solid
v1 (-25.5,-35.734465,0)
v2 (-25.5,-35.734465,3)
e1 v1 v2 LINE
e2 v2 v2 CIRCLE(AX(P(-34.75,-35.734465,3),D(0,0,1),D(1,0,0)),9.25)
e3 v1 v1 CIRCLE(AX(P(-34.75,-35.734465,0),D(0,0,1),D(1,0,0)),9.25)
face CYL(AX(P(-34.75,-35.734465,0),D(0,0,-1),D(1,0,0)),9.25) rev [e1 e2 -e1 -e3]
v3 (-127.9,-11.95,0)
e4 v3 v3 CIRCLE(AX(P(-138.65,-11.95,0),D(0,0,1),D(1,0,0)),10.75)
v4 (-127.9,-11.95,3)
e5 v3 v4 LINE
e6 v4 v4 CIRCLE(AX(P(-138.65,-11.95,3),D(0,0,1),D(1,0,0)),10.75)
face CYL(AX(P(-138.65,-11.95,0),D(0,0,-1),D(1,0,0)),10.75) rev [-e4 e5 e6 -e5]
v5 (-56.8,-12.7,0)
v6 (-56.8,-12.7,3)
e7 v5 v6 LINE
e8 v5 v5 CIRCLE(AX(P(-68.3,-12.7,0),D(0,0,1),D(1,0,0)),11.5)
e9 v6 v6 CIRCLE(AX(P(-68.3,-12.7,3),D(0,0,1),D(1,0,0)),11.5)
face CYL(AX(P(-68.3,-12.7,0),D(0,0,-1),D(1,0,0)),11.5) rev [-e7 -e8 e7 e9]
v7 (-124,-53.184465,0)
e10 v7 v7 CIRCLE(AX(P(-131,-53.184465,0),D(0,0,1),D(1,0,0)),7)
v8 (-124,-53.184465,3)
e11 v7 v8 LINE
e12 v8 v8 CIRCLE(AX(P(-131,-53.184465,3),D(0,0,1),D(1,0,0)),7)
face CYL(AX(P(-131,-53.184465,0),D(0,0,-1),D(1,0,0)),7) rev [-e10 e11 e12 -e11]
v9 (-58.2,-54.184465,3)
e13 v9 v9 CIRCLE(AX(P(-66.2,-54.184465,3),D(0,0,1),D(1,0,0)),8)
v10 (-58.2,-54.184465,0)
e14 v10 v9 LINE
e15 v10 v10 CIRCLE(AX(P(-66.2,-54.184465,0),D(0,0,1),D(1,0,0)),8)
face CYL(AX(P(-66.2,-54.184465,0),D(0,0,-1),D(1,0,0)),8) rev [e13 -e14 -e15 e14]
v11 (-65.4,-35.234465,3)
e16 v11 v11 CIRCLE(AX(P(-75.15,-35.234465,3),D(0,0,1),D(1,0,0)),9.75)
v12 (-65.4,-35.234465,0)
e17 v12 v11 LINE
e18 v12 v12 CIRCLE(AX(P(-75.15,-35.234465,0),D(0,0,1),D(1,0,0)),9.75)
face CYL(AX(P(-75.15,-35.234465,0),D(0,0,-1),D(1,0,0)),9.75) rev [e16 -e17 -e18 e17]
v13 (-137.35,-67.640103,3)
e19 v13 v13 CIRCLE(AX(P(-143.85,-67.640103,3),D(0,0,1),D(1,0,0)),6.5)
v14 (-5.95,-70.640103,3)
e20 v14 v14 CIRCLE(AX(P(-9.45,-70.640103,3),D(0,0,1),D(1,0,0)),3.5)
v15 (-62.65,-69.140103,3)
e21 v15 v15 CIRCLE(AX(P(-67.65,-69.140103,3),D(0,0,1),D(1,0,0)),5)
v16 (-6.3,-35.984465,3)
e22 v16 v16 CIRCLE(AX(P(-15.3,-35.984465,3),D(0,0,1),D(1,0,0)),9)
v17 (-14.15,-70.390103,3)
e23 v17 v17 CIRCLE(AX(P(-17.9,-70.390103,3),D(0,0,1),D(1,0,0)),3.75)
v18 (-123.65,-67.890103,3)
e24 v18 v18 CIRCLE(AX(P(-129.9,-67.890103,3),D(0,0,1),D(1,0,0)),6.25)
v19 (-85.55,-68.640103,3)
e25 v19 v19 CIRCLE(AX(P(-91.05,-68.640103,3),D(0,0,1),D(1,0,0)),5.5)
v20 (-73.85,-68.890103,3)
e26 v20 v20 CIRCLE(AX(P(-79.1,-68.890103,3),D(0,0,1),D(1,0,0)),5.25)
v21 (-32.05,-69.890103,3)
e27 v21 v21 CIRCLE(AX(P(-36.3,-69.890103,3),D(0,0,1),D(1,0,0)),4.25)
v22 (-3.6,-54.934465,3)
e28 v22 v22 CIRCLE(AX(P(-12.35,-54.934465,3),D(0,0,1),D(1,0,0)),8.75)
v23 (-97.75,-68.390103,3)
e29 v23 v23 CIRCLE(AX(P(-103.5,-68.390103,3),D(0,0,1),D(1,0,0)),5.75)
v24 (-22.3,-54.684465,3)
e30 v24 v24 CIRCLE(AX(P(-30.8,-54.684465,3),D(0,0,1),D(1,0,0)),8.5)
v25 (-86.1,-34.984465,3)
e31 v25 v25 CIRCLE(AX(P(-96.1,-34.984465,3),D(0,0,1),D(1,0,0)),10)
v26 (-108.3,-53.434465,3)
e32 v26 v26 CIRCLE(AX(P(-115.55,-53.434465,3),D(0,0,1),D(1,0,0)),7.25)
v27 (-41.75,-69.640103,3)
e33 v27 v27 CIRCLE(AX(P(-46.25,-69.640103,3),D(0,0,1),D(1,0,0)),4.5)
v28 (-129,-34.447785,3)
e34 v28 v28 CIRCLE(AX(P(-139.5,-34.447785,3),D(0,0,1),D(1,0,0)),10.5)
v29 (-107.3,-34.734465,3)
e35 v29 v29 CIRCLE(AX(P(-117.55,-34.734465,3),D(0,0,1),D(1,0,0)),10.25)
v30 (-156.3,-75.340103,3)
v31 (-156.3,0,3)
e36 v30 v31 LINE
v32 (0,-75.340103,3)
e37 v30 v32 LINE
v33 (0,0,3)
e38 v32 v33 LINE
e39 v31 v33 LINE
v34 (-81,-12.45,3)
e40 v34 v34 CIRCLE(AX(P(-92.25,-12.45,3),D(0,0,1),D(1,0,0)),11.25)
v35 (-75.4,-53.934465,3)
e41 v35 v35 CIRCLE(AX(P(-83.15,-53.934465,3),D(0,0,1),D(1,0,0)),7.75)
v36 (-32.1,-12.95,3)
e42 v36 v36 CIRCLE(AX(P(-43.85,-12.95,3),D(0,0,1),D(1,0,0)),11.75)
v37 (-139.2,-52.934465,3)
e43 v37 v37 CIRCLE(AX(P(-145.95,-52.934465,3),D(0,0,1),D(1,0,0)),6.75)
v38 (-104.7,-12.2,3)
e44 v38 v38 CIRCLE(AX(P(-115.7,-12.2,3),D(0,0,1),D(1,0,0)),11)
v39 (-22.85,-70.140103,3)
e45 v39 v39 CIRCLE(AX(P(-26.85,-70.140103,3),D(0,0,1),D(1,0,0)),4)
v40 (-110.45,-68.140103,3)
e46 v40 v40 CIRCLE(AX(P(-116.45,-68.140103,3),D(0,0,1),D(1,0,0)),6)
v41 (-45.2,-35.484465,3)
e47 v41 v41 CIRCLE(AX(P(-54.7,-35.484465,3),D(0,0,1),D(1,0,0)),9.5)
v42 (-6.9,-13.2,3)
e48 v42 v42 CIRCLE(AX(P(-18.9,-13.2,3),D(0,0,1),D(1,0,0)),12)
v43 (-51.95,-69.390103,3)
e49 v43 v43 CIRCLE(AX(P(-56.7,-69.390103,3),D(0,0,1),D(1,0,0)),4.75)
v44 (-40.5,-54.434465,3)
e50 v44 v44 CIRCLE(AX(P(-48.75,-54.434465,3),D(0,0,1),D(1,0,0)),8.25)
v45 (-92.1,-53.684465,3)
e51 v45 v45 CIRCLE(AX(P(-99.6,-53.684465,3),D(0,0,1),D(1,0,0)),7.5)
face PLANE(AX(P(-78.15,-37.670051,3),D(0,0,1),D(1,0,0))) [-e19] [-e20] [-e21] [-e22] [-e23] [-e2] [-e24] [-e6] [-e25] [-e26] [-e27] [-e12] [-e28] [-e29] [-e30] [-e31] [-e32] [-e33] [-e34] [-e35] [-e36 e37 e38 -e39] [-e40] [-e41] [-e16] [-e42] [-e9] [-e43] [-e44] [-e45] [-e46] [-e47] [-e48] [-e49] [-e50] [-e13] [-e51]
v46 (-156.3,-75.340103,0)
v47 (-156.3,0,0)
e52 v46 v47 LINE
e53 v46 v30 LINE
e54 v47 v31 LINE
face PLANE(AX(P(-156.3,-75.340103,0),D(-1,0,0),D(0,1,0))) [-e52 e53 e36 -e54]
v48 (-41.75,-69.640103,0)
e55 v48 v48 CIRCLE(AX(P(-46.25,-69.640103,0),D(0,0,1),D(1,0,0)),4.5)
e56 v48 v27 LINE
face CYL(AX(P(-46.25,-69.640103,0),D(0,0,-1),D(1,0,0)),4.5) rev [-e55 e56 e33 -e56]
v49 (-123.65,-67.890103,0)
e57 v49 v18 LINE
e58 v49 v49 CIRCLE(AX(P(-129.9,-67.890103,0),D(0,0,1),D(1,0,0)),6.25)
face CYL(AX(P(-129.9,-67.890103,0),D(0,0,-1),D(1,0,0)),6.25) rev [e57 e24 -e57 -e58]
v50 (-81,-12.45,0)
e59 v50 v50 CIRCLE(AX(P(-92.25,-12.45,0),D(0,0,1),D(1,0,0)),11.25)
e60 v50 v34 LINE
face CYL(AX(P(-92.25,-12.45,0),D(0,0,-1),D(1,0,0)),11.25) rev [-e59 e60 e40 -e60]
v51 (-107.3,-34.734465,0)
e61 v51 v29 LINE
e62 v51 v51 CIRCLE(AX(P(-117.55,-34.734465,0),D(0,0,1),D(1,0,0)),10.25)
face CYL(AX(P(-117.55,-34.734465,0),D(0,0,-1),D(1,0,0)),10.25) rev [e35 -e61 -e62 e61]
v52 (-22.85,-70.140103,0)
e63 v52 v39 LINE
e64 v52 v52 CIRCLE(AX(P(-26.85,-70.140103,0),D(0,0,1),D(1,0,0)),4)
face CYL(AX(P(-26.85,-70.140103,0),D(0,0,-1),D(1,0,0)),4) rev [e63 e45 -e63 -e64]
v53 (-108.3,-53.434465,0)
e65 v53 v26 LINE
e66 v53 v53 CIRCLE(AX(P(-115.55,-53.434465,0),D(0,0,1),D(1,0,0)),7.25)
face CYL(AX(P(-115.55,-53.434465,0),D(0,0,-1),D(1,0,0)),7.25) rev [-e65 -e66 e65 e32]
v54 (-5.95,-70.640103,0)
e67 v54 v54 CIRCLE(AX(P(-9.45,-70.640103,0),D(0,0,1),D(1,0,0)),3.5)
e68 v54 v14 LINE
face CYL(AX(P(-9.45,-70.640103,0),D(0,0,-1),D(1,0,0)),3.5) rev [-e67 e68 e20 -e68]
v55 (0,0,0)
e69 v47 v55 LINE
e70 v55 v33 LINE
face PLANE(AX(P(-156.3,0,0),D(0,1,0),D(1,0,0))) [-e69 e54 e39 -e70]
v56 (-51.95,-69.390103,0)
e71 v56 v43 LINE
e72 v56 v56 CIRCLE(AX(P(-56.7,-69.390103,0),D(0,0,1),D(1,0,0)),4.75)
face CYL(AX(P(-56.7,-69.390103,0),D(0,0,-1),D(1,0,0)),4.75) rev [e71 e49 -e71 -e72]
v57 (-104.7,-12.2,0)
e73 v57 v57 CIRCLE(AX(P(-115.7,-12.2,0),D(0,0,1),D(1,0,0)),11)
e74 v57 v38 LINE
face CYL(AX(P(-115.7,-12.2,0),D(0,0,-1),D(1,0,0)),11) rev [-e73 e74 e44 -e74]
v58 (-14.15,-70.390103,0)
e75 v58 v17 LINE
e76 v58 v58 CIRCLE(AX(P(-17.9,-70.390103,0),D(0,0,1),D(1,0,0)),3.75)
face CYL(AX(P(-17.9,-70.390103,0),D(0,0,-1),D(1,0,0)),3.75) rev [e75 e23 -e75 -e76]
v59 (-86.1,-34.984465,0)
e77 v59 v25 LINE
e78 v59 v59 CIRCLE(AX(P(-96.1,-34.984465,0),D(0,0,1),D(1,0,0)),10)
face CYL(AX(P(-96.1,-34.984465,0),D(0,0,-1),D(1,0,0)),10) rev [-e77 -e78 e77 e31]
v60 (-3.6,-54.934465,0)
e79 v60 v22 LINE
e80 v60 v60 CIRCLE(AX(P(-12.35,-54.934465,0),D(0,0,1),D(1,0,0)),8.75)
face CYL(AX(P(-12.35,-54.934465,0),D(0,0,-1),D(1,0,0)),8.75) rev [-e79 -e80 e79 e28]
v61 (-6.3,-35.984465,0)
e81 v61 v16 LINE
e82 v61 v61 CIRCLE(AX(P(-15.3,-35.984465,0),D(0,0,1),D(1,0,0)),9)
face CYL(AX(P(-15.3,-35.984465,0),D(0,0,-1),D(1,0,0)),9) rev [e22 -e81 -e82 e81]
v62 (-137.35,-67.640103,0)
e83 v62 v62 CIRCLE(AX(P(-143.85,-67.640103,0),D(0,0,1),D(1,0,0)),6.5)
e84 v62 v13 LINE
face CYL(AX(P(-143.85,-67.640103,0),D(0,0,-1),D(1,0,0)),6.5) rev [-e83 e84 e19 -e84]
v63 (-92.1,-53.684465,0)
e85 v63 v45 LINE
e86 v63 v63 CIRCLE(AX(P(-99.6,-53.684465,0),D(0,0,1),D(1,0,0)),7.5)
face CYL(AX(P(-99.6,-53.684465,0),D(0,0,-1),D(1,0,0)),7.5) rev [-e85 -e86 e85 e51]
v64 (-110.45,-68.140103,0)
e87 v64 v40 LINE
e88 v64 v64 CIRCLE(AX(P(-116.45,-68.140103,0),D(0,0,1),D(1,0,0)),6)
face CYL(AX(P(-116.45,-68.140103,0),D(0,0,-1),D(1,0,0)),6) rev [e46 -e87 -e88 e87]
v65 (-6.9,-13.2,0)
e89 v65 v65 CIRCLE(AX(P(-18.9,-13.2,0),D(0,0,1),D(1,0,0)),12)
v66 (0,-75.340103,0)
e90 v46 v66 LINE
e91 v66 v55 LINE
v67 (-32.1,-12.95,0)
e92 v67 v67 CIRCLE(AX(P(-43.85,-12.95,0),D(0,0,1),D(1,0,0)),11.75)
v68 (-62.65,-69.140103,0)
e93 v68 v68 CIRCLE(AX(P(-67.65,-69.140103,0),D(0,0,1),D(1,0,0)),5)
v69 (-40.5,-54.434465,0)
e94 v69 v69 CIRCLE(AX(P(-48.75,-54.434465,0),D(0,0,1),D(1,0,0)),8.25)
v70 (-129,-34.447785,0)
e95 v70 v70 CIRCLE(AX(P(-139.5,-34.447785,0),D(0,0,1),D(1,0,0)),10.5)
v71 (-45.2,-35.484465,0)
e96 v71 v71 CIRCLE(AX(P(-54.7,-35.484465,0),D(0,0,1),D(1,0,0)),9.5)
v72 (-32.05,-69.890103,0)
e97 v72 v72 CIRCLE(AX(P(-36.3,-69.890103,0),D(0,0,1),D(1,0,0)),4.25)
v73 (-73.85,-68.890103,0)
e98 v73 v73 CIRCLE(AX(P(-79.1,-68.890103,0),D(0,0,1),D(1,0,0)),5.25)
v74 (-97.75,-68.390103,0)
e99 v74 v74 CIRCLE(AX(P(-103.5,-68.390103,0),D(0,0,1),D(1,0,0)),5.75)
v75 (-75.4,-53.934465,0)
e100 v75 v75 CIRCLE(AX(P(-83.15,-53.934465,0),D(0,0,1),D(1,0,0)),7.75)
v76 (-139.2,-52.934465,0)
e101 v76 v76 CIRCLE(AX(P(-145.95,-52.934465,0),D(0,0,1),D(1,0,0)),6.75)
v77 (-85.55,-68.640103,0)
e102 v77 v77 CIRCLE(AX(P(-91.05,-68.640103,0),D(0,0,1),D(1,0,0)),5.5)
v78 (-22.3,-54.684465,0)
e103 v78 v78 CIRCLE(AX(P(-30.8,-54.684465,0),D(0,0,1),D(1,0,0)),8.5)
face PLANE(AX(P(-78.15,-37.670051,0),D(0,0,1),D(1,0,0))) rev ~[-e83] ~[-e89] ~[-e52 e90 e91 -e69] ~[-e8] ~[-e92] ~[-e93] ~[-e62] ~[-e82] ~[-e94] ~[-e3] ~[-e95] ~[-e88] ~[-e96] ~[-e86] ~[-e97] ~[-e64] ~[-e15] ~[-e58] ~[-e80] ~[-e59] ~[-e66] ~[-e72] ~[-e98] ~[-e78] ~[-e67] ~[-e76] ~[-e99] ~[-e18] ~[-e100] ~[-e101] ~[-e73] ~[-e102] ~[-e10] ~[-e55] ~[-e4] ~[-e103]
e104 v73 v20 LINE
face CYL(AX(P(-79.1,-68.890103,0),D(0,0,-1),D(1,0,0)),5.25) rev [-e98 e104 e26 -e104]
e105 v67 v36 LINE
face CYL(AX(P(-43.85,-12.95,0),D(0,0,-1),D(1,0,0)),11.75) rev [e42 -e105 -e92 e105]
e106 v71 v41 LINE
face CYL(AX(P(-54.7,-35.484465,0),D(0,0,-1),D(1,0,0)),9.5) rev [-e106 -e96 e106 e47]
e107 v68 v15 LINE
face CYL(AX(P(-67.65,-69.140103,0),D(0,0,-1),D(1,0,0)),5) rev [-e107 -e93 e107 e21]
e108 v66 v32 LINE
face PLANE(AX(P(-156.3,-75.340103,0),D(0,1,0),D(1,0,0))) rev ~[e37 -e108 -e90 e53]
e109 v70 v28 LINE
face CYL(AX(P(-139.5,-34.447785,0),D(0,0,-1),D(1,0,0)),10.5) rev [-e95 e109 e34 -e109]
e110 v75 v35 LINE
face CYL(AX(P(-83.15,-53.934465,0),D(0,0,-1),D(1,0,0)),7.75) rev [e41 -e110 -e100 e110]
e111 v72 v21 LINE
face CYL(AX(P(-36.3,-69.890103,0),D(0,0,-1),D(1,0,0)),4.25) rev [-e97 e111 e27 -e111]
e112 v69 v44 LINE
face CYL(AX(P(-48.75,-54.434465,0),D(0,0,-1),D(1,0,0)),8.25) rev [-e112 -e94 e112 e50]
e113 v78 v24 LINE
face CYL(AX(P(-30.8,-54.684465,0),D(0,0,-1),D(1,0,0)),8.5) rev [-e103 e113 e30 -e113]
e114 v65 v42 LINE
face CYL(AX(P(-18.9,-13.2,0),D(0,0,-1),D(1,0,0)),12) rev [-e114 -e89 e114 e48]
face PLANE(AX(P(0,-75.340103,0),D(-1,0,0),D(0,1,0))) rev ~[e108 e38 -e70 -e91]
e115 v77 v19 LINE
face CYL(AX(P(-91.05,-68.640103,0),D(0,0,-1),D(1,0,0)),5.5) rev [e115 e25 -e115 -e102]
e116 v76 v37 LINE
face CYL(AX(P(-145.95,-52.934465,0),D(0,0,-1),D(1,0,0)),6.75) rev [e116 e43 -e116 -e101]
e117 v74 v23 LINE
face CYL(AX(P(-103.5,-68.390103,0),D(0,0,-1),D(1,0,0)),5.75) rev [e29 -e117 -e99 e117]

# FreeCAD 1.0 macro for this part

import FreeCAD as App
import Part
import Sketcher

V = App.Vector
Q = App.Units.Quantity

doc = App.newDocument("Part")
body = doc.addObject("PartDesign::Body", "Body")

# Sketch on XY plane
sketch1 = body.newObject("Sketcher::SketchObject", "Sketch")
sketch1.AttachmentSupport = (doc.getObject("XY_Plane"), [""])
sketch1.MapMode = "FlatFace"
sketch1.addGeometry([
    Part.LineSegment(V(-156.3, 0, 0), V(-156.3, -75.3, 0)),  # 0
    Part.LineSegment(V(-156.3, -75.3, 0), V(0, -75.3, 0)),  # 1
    Part.LineSegment(V(0, -75.3, 0), V(0, 0, 0)),  # 2
    Part.LineSegment(V(0, 0, 0), V(-156.3, 0, 0)),  # 3
    Part.Circle(V(-143.8, -67.6, 0), V(0, 0, 1), 6.5),  # 4
    Part.Circle(V(-129.9, -67.9, 0), V(0, 0, 1), 6.2),  # 5
    Part.Circle(V(-116.5, -68.1, 0), V(0, 0, 1), 6),  # 6
    Part.Circle(V(-103.5, -68.4, 0), V(0, 0, 1), 5.8),  # 7
    Part.Circle(V(-91, -68.6, 0), V(0, 0, 1), 5.5),  # 8
    Part.Circle(V(-79.1, -68.9, 0), V(0, 0, 1), 5.2),  # 9
    Part.Circle(V(-145.9, -52.9, 0), V(0, 0, 1), 6.8),  # 10
    Part.Circle(V(-131, -53.2, 0), V(0, 0, 1), 7),  # 11
    Part.Circle(V(-115.5, -53.4, 0), V(0, 0, 1), 7.2),  # 12
    Part.Circle(V(-99.6, -53.7, 0), V(0, 0, 1), 7.5),  # 13
    Part.Circle(V(-83.2, -53.9, 0), V(0, 0, 1), 7.8),  # 14
    Part.Circle(V(-67.7, -69.1, 0), V(0, 0, 1), 5),  # 15
    Part.Circle(V(-46.2, -69.6, 0), V(0, 0, 1), 4.5),  # 16
    Part.Circle(V(-56.7, -69.4, 0), V(0, 0, 1), 4.8),  # 17
    Part.Circle(V(-36.3, -69.9, 0), V(0, 0, 1), 4.2),  # 18
    Part.Circle(V(-26.9, -70.1, 0), V(0, 0, 1), 4),  # 19
    Part.Circle(V(-17.9, -70.4, 0), V(0, 0, 1), 3.8),  # 20
    Part.Circle(V(-9.4, -70.6, 0), V(0, 0, 1), 3.5),  # 21
    Part.Circle(V(-66.2, -54.2, 0), V(0, 0, 1), 8),  # 22
    Part.Circle(V(-48.8, -54.4, 0), V(0, 0, 1), 8.2),  # 23
    Part.Circle(V(-30.8, -54.7, 0), V(0, 0, 1), 8.5),  # 24
    Part.Circle(V(-12.3, -54.9, 0), V(0, 0, 1), 8.8),  # 25
    Part.Circle(V(-139.5, -34.4, 0), V(0, 0, 1), 10.5),  # 26
    Part.Circle(V(-117.5, -34.7, 0), V(0, 0, 1), 10.2),  # 27
    Part.Circle(V(-96.1, -35, 0), V(0, 0, 1), 10),  # 28
    Part.Circle(V(-138.7, -11.9, 0), V(0, 0, 1), 10.8),  # 29
    Part.Circle(V(-115.7, -12.2, 0), V(0, 0, 1), 11),  # 30
    Part.Circle(V(-92.2, -12.4, 0), V(0, 0, 1), 11.2),  # 31
    Part.Circle(V(-75.2, -35.2, 0), V(0, 0, 1), 9.8),  # 32
    Part.Circle(V(-54.7, -35.5, 0), V(0, 0, 1), 9.5),  # 33
    Part.Circle(V(-34.8, -35.7, 0), V(0, 0, 1), 9.2),  # 34
    Part.Circle(V(-15.3, -36, 0), V(0, 0, 1), 9),  # 35
    Part.Circle(V(-68.3, -12.7, 0), V(0, 0, 1), 11.5),  # 36
    Part.Circle(V(-43.9, -12.9, 0), V(0, 0, 1), 11.8),  # 37
    Part.Circle(V(-18.9, -13.2, 0), V(0, 0, 1), 12),  # 38
], False)
sketch1.addConstraint([
    Sketcher.Constraint("Coincident", 0, 2, 1, 1),
    Sketcher.Constraint("Coincident", 1, 2, 2, 1),
    Sketcher.Constraint("Coincident", 2, 2, 3, 1),
    Sketcher.Constraint("Coincident", 3, 2, 0, 1),
    Sketcher.Constraint("Vertical", 0),
    Sketcher.Constraint("Horizontal", 1),
    Sketcher.Constraint("Vertical", 2),
    Sketcher.Constraint("Horizontal", 3),
    Sketcher.Constraint("Coincident", 2, 2, -1, 1),
    Sketcher.Constraint("Diameter", 4, Q("13 mm")),
    Sketcher.Constraint("Diameter", 6, Q("12 mm")),
    Sketcher.Constraint("Diameter", 8, Q("11 mm")),
    Sketcher.Constraint("Diameter", 11, Q("14 mm")),
    Sketcher.Constraint("Diameter", 13, Q("15 mm")),
    Sketcher.Constraint("Diameter", 15, Q("10 mm")),
    Sketcher.Constraint("Diameter", 16, Q("9 mm")),
    Sketcher.Constraint("Diameter", 19, Q("8 mm")),
    Sketcher.Constraint("Diameter", 21, Q("7 mm")),
    Sketcher.Constraint("Diameter", 22, Q("16 mm")),
    Sketcher.Constraint("Diameter", 24, Q("17 mm")),
    Sketcher.Constraint("Diameter", 26, Q("21 mm")),
    Sketcher.Constraint("Diameter", 28, Q("20 mm")),
    Sketcher.Constraint("Diameter", 30, Q("22 mm")),
    Sketcher.Constraint("Diameter", 33, Q("19 mm")),
    Sketcher.Constraint("Diameter", 35, Q("18 mm")),
    Sketcher.Constraint("Diameter", 36, Q("23 mm")),
    Sketcher.Constraint("Diameter", 38, Q("24 mm")),
    Sketcher.Constraint("Diameter", 5, Q("12.5 mm")),
    Sketcher.Constraint("Diameter", 7, Q("11.5 mm")),
    Sketcher.Constraint("Diameter", 9, Q("10.5 mm")),
    Sketcher.Constraint("Diameter", 10, Q("13.5 mm")),
    Sketcher.Constraint("Diameter", 12, Q("14.5 mm")),
    Sketcher.Constraint("Diameter", 14, Q("15.5 mm")),
    Sketcher.Constraint("Diameter", 17, Q("9.5 mm")),
    Sketcher.Constraint("Diameter", 18, Q("8.5 mm")),
    Sketcher.Constraint("Diameter", 20, Q("7.5 mm")),
    Sketcher.Constraint("Diameter", 23, Q("16.5 mm")),
    Sketcher.Constraint("Diameter", 25, Q("17.5 mm")),
    Sketcher.Constraint("Diameter", 27, Q("20.5 mm")),
    Sketcher.Constraint("Diameter", 29, Q("21.5 mm")),
    Sketcher.Constraint("Diameter", 31, Q("22.5 mm")),
    Sketcher.Constraint("Diameter", 32, Q("19.5 mm")),
    Sketcher.Constraint("Diameter", 34, Q("18.5 mm")),
    Sketcher.Constraint("Diameter", 37, Q("23.5 mm")),
    Sketcher.Constraint("DistanceX", 1, 1, 1, 2, Q("156.3 mm")),
    Sketcher.Constraint("DistanceX", 11, 3, -1, 1, Q("131 mm")),
    Sketcher.Constraint("DistanceY", 8, 3, 4, 3, Q("1 mm")),
    Sketcher.Constraint("DistanceY", 9, 3, 5, 3, Q("1 mm")),
    Sketcher.Constraint("DistanceY", 16, 3, 8, 3, Q("1 mm")),
    Sketcher.Constraint("DistanceY", 18, 3, 9, 3, Q("1 mm")),
    Sketcher.Constraint("DistanceY", 19, 3, 15, 3, Q("1 mm")),
    Sketcher.Constraint("DistanceY", 20, 3, 17, 3, Q("1 mm")),
    Sketcher.Constraint("DistanceY", 21, 3, 16, 3, Q("1 mm")),
    Sketcher.Constraint("DistanceX", 27, 3, 12, 3, Q("2 mm")),
    Sketcher.Constraint("DistanceX", 14, 3, 32, 3, Q("8 mm")),
    Sketcher.Constraint("DistanceX", 23, 3, 34, 3, Q("14 mm")),
    Sketcher.Constraint("DistanceX", 5, 3, -1, 1, Q("129.9 mm")),
    Sketcher.Constraint("DistanceX", 7, 3, -1, 1, Q("103.5 mm")),
    Sketcher.Constraint("DistanceX", 9, 3, -1, 1, Q("79.1 mm")),
    Sketcher.Constraint("DistanceX", 13, 3, -1, 1, Q("99.6 mm")),
    Sketcher.Constraint("DistanceX", 17, 3, -1, 1, Q("56.7 mm")),
    Sketcher.Constraint("DistanceX", 18, 3, -1, 1, Q("36.3 mm")),
    Sketcher.Constraint("DistanceX", 20, 3, -1, 1, Q("17.9 mm")),
    Sketcher.Constraint("DistanceX", 22, 3, -1, 1, Q("66.2 mm")),
    Sketcher.Constraint("DistanceX", 24, 3, -1, 1, Q("30.8 mm")),
    Sketcher.Constraint("DistanceX", 26, 3, -1, 1, Q("139.5 mm")),
    Sketcher.Constraint("DistanceX", 28, 3, -1, 1, Q("96.1 mm")),
    Sketcher.Constraint("DistanceX", 30, 3, -1, 1, Q("115.7 mm")),
    Sketcher.Constraint("DistanceY", 30, 3, -1, 1, Q("12.2 mm")),
    Sketcher.Constraint("DistanceX", 33, 3, -1, 1, Q("54.7 mm")),
    Sketcher.Constraint("DistanceX", 35, 3, -1, 1, Q("15.3 mm")),
    Sketcher.Constraint("DistanceX", 36, 3, -1, 1, Q("68.3 mm")),
    Sketcher.Constraint("DistanceY", 36, 3, -1, 1, Q("12.7 mm")),
    Sketcher.Constraint("DistanceX", 38, 3, -1, 1, Q("18.9 mm")),
    Sketcher.Constraint("DistanceY", 38, 3, -1, 1, Q("13.2 mm")),
    Sketcher.Constraint("DistanceX", 4, 3, 6, 3, Q("27.4 mm")),
    Sketcher.Constraint("DistanceY", 6, 3, 4, 3, Q("0.5 mm")),
    Sketcher.Constraint("DistanceY", 7, 3, 5, 3, Q("0.5 mm")),
    Sketcher.Constraint("DistanceX", 6, 3, 8, 3, Q("25.4 mm")),
    Sketcher.Constraint("DistanceX", 10, 3, 4, 3, Q("2.1 mm")),
    Sketcher.Constraint("DistanceX", 6, 3, 12, 3, Q("0.9 mm")),
    Sketcher.Constraint("DistanceX", 8, 3, 14, 3, Q("7.9 mm")),
    Sketcher.Constraint("DistanceY", 14, 3, 12, 3, Q("0.5 mm")),
    Sketcher.Constraint("DistanceX", 14, 3, 15, 3, Q("15.5 mm")),
    Sketcher.Constraint("DistanceY", 15, 3, 8, 3, Q("0.5 mm")),
    Sketcher.Constraint("DistanceX", 15, 3, 16, 3, Q("21.4 mm")),
    Sketcher.Constraint("DistanceY", 17, 3, 9, 3, Q("0.5 mm")),
    Sketcher.Constraint("DistanceX", 16, 3, 19, 3, Q("19.4 mm")),
    Sketcher.Constraint("DistanceX", 19, 3, 21, 3, Q("17.4 mm")),
    Sketcher.Constraint("DistanceX", 23, 3, 16, 3, Q("2.5 mm")),
    Sketcher.Constraint("DistanceX", 25, 3, 21, 3, Q("2.9 mm")),
    Sketcher.Constraint("DistanceY", 12, 3, 27, 3, Q("18.7 mm")),
    Sketcher.Constraint("DistanceY", 13, 3, 28, 3, Q("18.7 mm")),
    Sketcher.Constraint("DistanceX", 29, 3, 27, 3, Q("21.1 mm")),
    Sketcher.Constraint("DistanceX", 27, 3, 31, 3, Q("25.3 mm")),
    Sketcher.Constraint("DistanceY", 14, 3, 32, 3, Q("18.7 mm")),
    Sketcher.Constraint("DistanceY", 22, 3, 33, 3, Q("18.7 mm")),
    Sketcher.Constraint("DistanceY", 24, 3, 33, 3, Q("19.2 mm")),
    Sketcher.Constraint("DistanceY", 23, 3, 34, 3, Q("18.7 mm")),
    Sketcher.Constraint("DistanceY", 25, 3, 34, 3, Q("19.2 mm")),
    Sketcher.Constraint("DistanceY", 24, 3, 35, 3, Q("18.7 mm")),
    Sketcher.Constraint("DistanceX", 37, 3, 34, 3, Q("9.1 mm")),
    Sketcher.Constraint("DistanceY", 0, 2, 4, 3, Q("7.7 mm")),
    Sketcher.Constraint("DistanceX", 4, 3, -1, 1, Q("143.85 mm")),
    Sketcher.Constraint("DistanceY", 29, 3, -1, 1, Q("11.95 mm")),
    Sketcher.Constraint("DistanceY", 31, 3, -1, 1, Q("12.45 mm")),
    Sketcher.Constraint("DistanceY", 37, 3, -1, 1, Q("12.95 mm")),
    Sketcher.Constraint("DistanceY", 5, 3, 4, 3, Q("0.25 mm")),
    Sketcher.Constraint("DistanceY", 11, 3, 10, 3, Q("0.25 mm")),
    Sketcher.Constraint("DistanceY", 12, 3, 11, 3, Q("0.25 mm")),
    Sketcher.Constraint("DistanceY", 13, 3, 12, 3, Q("0.25 mm")),
    Sketcher.Constraint("DistanceY", 22, 3, 14, 3, Q("0.25 mm")),
    Sketcher.Constraint("DistanceY", 23, 3, 22, 3, Q("0.25 mm")),
    Sketcher.Constraint("DistanceY", 0, 2, 0, 1, Q("75.340103 mm")),
    Sketcher.Constraint("DistanceY", 10, 3, 26, 3, Q("18.48668 mm")),
    Sketcher.Constraint("DistanceY", 10, 3, -1, 1, Q("52.934465 mm")),
])
pad1 = body.newObject("PartDesign::Pad", "Pad")
pad1.Profile = sketch1
pad1.Length = 3

doc.recompute()
